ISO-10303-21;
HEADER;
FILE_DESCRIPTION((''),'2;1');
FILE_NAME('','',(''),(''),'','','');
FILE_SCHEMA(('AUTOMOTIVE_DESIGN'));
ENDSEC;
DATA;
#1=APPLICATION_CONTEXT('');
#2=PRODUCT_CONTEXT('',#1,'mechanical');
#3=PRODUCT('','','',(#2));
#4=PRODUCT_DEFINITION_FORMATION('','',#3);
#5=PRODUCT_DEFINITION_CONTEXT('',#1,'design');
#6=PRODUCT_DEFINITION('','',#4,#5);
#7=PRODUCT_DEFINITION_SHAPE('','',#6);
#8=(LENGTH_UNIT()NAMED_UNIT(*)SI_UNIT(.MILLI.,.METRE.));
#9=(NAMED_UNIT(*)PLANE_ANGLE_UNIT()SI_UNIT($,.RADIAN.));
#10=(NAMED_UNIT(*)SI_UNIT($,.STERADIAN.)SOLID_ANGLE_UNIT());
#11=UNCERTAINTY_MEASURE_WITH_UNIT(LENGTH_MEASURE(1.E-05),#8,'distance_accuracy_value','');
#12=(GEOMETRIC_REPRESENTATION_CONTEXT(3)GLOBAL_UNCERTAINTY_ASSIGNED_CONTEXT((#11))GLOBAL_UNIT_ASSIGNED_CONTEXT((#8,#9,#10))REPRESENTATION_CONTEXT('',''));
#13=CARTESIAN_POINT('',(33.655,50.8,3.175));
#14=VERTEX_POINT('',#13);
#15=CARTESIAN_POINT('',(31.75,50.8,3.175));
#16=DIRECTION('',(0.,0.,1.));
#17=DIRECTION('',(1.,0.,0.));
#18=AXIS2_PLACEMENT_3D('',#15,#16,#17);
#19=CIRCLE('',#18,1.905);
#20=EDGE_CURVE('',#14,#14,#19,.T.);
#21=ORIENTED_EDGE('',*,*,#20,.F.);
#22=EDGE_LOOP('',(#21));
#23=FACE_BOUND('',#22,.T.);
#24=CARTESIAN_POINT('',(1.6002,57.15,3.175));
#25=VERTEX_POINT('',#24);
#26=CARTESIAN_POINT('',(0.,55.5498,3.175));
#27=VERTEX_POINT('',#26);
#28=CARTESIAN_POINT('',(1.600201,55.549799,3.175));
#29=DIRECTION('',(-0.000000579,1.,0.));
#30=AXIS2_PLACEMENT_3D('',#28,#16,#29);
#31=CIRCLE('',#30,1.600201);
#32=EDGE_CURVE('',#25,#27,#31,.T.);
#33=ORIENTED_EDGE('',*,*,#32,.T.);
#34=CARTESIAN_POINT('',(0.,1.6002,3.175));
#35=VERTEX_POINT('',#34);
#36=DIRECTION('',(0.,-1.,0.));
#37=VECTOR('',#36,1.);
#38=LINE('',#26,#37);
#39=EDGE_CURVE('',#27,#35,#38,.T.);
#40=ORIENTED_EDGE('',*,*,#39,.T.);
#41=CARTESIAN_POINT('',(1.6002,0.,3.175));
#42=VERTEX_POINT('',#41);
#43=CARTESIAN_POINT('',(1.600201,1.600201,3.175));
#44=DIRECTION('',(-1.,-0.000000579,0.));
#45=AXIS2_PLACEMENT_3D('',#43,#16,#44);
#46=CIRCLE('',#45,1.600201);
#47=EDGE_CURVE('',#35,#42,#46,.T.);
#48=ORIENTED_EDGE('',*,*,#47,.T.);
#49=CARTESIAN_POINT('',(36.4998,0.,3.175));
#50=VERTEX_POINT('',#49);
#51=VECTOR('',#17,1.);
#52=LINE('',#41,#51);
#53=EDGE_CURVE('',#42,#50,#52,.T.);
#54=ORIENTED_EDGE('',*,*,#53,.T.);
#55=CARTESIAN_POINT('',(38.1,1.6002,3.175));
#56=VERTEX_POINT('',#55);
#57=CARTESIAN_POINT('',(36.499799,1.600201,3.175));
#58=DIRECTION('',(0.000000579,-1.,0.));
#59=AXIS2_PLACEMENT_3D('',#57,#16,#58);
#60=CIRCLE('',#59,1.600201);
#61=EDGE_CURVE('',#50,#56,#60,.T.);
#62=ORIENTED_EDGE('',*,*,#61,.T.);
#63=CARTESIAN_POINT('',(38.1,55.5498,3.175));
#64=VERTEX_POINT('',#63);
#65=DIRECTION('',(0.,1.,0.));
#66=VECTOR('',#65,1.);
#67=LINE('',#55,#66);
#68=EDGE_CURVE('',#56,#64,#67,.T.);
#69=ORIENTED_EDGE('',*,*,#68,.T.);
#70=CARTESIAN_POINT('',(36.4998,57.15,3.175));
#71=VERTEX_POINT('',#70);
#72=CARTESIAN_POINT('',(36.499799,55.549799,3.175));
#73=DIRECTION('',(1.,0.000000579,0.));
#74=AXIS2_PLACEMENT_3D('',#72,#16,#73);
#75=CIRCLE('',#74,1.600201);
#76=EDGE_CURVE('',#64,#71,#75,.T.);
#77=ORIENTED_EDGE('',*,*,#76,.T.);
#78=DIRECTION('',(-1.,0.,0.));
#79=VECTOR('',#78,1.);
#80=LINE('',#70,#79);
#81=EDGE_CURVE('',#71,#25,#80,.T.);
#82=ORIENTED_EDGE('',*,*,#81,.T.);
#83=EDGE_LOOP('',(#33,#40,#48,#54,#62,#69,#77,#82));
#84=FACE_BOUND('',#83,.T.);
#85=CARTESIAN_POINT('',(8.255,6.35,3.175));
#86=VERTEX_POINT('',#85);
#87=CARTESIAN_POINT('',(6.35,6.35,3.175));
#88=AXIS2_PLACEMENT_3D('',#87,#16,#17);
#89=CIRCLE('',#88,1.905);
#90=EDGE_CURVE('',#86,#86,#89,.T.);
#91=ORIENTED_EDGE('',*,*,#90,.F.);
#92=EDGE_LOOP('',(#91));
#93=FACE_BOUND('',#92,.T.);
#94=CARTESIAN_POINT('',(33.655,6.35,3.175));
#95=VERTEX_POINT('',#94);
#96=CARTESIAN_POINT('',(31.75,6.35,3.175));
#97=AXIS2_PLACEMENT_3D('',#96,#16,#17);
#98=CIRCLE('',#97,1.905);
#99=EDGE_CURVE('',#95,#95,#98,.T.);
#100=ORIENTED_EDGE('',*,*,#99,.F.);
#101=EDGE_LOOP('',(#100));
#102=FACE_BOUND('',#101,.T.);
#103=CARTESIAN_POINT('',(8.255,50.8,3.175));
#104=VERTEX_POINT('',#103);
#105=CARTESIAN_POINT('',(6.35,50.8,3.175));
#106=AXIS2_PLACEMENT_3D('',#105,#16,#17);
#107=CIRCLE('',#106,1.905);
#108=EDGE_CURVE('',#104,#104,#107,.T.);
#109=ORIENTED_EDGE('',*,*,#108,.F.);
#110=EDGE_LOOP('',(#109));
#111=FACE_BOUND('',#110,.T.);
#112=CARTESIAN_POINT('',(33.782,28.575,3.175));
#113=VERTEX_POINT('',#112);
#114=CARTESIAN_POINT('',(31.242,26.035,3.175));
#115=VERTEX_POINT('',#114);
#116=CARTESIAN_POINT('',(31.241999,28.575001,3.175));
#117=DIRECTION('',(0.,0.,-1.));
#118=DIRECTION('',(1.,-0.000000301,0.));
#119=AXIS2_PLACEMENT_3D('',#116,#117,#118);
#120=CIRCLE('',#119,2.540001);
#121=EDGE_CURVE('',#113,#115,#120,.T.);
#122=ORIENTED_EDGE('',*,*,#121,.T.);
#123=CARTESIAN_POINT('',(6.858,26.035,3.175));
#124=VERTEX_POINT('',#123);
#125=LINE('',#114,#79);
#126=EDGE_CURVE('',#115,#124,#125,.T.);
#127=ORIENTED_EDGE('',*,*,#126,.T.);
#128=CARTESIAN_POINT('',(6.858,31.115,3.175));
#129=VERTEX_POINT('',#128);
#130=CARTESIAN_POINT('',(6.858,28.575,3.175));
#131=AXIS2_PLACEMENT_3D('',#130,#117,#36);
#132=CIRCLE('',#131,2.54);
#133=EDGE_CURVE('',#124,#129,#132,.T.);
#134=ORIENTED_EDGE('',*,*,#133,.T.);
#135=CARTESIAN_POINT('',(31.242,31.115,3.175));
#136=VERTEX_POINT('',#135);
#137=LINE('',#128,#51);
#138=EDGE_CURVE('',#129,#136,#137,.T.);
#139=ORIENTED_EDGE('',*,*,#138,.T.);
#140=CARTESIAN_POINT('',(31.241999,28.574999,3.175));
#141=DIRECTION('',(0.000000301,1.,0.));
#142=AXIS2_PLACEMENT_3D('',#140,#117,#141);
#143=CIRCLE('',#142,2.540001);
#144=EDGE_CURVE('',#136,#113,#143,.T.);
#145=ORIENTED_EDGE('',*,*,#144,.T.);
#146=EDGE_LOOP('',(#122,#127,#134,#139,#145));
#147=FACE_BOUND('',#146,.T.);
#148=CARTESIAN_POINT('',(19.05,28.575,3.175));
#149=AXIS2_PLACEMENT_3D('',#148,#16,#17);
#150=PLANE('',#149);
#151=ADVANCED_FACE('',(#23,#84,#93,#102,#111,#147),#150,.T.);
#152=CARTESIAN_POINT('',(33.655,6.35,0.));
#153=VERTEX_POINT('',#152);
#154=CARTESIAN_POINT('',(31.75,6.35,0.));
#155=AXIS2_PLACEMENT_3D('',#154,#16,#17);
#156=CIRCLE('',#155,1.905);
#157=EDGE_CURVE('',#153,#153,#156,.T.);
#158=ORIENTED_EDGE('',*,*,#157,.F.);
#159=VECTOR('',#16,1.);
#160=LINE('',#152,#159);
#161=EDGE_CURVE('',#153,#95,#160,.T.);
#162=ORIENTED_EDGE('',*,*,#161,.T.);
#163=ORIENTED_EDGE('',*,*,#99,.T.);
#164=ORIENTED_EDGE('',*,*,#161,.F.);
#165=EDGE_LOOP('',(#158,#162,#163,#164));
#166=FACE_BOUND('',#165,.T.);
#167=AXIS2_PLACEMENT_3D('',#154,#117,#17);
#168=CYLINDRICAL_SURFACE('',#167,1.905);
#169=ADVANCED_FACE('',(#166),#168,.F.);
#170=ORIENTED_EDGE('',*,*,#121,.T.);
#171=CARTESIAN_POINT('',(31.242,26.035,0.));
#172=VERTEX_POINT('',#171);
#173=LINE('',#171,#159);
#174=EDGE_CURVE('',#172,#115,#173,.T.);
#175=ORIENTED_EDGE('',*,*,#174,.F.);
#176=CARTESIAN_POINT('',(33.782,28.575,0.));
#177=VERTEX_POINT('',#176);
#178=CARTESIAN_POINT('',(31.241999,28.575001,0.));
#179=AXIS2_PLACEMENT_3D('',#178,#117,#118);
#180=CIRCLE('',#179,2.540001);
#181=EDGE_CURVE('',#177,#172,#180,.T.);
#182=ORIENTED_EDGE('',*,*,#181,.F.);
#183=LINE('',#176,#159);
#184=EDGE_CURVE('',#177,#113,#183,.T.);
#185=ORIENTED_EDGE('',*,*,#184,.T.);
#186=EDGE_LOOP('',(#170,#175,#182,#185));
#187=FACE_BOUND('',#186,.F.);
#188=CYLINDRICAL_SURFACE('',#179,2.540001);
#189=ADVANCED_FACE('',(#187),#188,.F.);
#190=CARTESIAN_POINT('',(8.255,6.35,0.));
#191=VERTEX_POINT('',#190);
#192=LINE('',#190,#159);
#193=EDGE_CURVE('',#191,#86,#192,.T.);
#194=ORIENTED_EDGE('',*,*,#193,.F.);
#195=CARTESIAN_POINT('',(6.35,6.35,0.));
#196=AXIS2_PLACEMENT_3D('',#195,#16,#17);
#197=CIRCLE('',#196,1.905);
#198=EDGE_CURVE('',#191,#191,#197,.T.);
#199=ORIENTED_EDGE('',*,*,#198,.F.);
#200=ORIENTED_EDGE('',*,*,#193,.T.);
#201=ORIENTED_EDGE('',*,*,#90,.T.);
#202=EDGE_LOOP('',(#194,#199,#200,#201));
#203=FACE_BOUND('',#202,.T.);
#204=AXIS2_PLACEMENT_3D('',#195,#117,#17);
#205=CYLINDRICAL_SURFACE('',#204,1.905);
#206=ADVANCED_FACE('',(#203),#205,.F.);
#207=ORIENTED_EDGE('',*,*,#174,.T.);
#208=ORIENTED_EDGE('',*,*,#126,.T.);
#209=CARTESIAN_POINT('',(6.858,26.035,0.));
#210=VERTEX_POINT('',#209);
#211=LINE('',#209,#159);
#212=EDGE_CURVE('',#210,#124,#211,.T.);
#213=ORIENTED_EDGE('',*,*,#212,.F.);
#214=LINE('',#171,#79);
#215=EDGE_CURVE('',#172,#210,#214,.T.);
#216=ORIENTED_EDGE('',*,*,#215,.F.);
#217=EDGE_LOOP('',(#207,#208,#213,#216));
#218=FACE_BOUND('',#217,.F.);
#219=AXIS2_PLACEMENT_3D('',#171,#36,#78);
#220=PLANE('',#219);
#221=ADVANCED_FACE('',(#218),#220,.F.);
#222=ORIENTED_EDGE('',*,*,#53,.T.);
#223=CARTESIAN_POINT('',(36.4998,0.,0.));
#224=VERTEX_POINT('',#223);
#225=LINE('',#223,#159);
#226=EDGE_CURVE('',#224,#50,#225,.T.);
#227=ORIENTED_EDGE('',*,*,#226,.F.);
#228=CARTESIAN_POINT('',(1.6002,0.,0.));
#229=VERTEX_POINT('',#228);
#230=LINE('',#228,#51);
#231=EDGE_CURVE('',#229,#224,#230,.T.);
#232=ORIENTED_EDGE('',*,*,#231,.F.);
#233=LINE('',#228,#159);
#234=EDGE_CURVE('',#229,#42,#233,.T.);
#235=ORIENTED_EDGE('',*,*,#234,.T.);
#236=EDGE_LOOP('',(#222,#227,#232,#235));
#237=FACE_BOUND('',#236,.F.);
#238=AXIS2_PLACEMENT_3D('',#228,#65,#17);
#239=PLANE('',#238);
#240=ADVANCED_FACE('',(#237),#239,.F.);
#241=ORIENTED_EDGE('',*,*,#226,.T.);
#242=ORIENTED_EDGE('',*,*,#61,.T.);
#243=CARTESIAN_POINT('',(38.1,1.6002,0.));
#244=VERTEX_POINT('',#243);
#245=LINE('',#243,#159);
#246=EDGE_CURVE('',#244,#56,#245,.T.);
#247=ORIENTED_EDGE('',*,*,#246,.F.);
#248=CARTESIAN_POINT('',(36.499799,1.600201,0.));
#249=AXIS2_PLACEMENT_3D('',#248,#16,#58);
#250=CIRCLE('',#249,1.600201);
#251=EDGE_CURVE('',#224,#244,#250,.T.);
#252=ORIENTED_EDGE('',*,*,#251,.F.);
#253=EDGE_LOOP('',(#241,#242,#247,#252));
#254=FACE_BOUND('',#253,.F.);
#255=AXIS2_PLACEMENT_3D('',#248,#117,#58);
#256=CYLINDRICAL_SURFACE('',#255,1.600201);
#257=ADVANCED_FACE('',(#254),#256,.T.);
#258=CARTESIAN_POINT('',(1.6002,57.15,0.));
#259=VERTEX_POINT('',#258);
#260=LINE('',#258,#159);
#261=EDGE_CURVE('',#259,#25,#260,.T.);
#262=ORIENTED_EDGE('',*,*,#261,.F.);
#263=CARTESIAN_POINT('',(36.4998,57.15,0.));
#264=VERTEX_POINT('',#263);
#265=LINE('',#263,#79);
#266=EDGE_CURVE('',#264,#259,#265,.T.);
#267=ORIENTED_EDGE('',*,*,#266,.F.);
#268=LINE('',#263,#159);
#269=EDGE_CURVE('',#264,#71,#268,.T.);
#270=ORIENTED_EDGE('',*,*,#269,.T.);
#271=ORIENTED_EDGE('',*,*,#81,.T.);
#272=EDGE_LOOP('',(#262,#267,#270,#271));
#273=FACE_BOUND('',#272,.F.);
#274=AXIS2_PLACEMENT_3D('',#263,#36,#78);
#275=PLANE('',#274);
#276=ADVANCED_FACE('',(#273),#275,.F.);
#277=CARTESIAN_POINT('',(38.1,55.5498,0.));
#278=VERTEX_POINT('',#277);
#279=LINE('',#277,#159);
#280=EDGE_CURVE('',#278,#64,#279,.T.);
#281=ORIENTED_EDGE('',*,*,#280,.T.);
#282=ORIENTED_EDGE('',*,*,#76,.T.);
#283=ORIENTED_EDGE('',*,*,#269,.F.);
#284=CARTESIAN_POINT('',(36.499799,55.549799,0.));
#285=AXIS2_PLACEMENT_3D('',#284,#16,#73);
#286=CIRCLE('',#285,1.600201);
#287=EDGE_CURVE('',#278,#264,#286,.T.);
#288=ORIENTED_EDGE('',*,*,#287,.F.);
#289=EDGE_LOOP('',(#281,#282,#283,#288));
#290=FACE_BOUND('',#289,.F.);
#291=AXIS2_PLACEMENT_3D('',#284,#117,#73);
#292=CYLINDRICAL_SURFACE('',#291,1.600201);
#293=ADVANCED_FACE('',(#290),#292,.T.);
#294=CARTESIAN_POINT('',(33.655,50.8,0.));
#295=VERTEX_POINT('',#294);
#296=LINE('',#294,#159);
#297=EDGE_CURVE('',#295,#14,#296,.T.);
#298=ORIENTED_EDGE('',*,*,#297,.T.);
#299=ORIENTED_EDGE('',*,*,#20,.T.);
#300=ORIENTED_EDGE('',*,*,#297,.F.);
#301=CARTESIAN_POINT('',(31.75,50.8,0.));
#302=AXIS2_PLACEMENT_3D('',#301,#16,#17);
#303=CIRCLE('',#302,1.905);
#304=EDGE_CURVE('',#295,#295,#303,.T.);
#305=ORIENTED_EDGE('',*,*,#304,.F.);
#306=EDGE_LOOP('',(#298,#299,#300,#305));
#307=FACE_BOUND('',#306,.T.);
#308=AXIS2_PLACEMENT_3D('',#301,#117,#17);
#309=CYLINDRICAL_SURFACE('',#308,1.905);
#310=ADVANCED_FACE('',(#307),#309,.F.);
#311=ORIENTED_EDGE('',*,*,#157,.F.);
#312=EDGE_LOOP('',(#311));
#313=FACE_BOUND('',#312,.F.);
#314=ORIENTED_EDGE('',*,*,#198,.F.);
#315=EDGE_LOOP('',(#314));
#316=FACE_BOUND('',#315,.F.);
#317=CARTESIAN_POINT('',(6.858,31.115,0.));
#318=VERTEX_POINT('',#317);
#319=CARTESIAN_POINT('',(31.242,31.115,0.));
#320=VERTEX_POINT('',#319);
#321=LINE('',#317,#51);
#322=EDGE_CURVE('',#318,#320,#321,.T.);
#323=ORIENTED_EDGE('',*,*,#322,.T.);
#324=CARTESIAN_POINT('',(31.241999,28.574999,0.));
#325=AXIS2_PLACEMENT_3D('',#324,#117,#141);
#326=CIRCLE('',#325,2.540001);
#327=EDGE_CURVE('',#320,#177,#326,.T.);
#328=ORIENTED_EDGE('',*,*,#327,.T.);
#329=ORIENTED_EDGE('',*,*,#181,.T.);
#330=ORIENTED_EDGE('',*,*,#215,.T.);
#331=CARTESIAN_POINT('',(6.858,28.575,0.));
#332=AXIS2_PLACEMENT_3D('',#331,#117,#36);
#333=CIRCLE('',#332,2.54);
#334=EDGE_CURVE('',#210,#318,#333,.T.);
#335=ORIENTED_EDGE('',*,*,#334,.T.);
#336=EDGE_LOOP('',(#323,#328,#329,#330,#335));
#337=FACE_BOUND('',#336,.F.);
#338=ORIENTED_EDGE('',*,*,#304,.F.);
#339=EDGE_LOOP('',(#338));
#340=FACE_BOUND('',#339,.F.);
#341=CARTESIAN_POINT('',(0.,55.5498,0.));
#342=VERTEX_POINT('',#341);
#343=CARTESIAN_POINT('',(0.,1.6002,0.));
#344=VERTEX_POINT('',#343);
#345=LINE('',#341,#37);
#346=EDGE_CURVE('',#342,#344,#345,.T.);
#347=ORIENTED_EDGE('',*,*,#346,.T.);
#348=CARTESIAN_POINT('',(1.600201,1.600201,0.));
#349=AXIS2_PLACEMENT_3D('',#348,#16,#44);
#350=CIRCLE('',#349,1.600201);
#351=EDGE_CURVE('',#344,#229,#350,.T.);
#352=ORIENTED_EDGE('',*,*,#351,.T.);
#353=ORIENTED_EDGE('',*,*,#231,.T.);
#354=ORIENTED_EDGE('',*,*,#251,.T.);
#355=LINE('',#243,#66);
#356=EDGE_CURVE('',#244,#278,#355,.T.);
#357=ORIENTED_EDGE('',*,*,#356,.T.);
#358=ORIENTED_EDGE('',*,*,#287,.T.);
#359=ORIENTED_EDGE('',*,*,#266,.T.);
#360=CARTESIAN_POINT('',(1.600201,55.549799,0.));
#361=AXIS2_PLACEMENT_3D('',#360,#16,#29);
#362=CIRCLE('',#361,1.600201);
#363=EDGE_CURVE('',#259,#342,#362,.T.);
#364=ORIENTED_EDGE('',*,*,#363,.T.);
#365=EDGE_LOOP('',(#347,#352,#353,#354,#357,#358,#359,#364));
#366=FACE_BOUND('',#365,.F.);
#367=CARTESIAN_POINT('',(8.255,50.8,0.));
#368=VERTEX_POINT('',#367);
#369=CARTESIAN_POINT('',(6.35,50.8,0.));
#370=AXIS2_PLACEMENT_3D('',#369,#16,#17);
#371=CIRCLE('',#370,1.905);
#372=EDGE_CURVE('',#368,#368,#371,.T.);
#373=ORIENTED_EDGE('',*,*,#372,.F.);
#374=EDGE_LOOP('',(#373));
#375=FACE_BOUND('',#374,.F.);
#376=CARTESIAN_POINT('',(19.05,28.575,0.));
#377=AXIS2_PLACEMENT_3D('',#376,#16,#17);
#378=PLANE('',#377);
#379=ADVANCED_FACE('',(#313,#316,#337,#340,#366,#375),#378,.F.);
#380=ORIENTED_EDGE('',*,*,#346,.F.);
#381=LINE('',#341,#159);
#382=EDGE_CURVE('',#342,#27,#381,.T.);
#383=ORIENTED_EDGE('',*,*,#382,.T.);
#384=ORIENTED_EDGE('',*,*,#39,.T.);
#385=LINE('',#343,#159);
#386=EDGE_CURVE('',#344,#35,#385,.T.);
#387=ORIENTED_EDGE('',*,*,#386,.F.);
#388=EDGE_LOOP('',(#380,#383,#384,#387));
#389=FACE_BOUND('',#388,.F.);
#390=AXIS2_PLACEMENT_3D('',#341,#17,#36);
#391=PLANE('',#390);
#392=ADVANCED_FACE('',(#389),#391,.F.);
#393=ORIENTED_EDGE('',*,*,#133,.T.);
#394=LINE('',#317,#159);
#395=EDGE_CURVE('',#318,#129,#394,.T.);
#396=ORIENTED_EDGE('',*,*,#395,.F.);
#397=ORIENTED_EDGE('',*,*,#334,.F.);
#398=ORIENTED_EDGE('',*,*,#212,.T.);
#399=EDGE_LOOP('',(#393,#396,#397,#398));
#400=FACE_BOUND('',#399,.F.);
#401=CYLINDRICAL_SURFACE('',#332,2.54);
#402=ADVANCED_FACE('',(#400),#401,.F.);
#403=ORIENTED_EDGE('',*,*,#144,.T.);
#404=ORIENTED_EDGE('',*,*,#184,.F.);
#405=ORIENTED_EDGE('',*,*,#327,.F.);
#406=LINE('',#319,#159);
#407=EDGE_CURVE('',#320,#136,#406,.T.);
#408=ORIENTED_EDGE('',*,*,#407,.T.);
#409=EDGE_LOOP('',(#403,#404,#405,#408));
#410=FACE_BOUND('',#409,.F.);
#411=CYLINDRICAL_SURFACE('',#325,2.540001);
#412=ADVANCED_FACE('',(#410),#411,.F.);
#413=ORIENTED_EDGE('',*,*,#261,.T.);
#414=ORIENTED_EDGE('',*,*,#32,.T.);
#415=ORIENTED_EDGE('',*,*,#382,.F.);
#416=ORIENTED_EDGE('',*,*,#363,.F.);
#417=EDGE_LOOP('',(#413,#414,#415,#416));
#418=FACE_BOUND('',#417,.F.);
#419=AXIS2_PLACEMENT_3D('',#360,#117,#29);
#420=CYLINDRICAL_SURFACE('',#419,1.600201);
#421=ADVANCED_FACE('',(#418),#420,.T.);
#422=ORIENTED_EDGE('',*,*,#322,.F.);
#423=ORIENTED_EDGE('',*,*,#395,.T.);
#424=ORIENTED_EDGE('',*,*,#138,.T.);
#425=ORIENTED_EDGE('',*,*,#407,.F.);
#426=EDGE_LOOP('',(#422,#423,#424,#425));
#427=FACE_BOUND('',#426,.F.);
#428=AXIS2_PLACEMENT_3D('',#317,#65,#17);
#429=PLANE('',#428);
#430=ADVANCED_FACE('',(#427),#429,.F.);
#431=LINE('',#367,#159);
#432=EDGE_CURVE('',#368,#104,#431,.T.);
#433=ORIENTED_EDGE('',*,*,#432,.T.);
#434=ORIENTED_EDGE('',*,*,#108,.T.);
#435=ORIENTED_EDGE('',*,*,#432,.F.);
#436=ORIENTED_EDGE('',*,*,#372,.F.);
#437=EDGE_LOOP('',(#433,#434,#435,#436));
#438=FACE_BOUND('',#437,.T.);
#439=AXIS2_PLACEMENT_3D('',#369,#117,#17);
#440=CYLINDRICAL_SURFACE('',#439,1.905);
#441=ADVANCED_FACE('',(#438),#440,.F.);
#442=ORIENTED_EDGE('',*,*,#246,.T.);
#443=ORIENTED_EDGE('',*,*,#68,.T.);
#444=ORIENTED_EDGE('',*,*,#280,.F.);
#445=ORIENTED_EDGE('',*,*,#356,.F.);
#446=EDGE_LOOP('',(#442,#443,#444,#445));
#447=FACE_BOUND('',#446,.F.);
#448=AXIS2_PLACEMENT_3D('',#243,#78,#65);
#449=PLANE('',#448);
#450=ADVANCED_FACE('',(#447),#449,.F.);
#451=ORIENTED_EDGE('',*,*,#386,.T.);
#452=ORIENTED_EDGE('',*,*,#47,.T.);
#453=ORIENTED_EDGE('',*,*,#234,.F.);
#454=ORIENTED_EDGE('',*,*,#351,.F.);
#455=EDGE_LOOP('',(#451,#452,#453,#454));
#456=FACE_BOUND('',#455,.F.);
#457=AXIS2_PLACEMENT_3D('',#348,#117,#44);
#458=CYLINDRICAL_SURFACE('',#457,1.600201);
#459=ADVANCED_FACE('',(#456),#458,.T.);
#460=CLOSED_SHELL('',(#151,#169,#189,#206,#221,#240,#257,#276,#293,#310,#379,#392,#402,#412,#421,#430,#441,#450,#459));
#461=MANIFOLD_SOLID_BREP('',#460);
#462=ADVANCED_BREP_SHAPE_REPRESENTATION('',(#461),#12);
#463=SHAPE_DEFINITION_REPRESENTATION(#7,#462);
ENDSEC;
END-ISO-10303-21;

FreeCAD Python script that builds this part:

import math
import FreeCAD as App
import Part
import Sketcher

V = App.Vector
Q = App.Units.Quantity

doc = App.newDocument("Part")
params = doc.addObject("Spreadsheet::Sheet", "Params")
for row, (alias, value) in enumerate([
    ("sketch1_radius", "0.1 in"),
    ("sketch1_diameter", "0.15 in"),
    ("sketch1_radius2", "0.063 in"),
    ("sketch1_width", "0.96 in"),
    ("sketch1_height", "2.124 in"),
    ("pad1_length", "0.125 in"),
], start=1):
    params.set(f"A{row}", alias)
    params.set(f"B{row}", "=" + value)
    params.setAlias(f"B{row}", alias)

body = doc.addObject("PartDesign::Body", "Body")

sketch1 = body.newObject("Sketcher::SketchObject", "Sketch")
sketch1.AttachmentSupport = (doc.getObject("XY_Plane"), [""])
sketch1.MapMode = "FlatFace"
sketch1.addGeometry([
    Part.ArcOfCircle(Part.Circle(V(1.6, 1.6, 0), V(0, 0, 1), 1.6), math.radians(-180), math.radians(-90)),
    Part.LineSegment(V(1.6, 0, 0), V(36.5, 0, 0)),
    Part.ArcOfCircle(Part.Circle(V(36.5, 1.6, 0), V(0, 0, 1), 1.6), math.radians(-90), math.radians(0)),
    Part.LineSegment(V(38.1, 1.6, 0), V(38.1, 55.5, 0)),
    Part.ArcOfCircle(Part.Circle(V(36.5, 55.5, 0), V(0, 0, 1), 1.6), math.radians(0), math.radians(90)),
    Part.LineSegment(V(36.5, 57.1, 0), V(1.6, 57.1, 0)),
    Part.ArcOfCircle(Part.Circle(V(1.6, 55.5, 0), V(0, 0, 1), 1.6), math.radians(90), math.radians(180)),
    Part.LineSegment(V(0, 55.5, 0), V(0, 1.6, 0)),
    Part.Circle(V(6.3, 6.3, 0), V(0, 0, 1), 1.9),
    Part.Circle(V(31.8, 6.3, 0), V(0, 0, 1), 1.9),
    Part.LineSegment(V(31.2, 26, 0), V(6.9, 26, 0)),
    Part.ArcOfCircle(Part.Circle(V(6.9, 28.6, 0), V(0, 0, 1), 2.5), math.radians(90), math.radians(270)),
    Part.LineSegment(V(6.9, 31.1, 0), V(31.2, 31.1, 0)),
    Part.ArcOfCircle(Part.Circle(V(31.2, 28.6, 0), V(0, 0, 1), 2.5), math.radians(0), math.radians(90)),
    Part.ArcOfCircle(Part.Circle(V(31.2, 28.6, 0), V(0, 0, 1), 2.5), math.radians(-90), math.radians(0)),
    Part.Circle(V(6.3, 50.8, 0), V(0, 0, 1), 1.9),
    Part.Circle(V(31.8, 50.8, 0), V(0, 0, 1), 1.9),
], False)
sketch1.addConstraint([
    Sketcher.Constraint("Tangent", 0, 2, 1, 1),
    Sketcher.Constraint("Tangent", 1, 2, 2, 1),
    Sketcher.Constraint("Tangent", 2, 2, 3, 1),
    Sketcher.Constraint("Tangent", 3, 2, 4, 1),
    Sketcher.Constraint("Tangent", 4, 2, 5, 1),
    Sketcher.Constraint("Tangent", 5, 2, 6, 1),
    Sketcher.Constraint("Tangent", 6, 2, 7, 1),
    Sketcher.Constraint("Tangent", 7, 2, 0, 1),
    Sketcher.Constraint("Tangent", 10, 2, 11, 2),
    Sketcher.Constraint("Tangent", 11, 1, 12, 1),
    Sketcher.Constraint("Tangent", 12, 2, 13, 2),
    Sketcher.Constraint("Tangent", 13, 1, 14, 2),
    Sketcher.Constraint("Tangent", 14, 1, 10, 1),
    Sketcher.Constraint("Horizontal", 1),
    Sketcher.Constraint("Vertical", 3),
    Sketcher.Constraint("Horizontal", 5),
    Sketcher.Constraint("Vertical", 7),
    Sketcher.Constraint("Horizontal", 10),
    Sketcher.Constraint("Horizontal", 12),
    Sketcher.Constraint("Equal", 0, 2),
    Sketcher.Constraint("Equal", 2, 4),
    Sketcher.Constraint("Equal", 4, 6),
    Sketcher.Constraint("Equal", 8, 9),
    Sketcher.Constraint("Equal", 11, 13),
    Sketcher.Constraint("Equal", 9, 15),
    Sketcher.Constraint("Equal", 15, 16),
    Sketcher.Constraint("PointOnObject", 0, 2, -1),
    Sketcher.Constraint("PointOnObject", 6, 2, -2),
    Sketcher.Constraint("Horizontal", 8, 3, 9, 3),
    Sketcher.Constraint("Horizontal", 15, 3, 16, 3),
    Sketcher.Constraint("Horizontal", 14, 3, 13, 1),
    Sketcher.Constraint("Vertical", 8, 3, 15, 3),
    Sketcher.Constraint("Vertical", 9, 3, 16, 3),
    Sketcher.Constraint("Radius", 11, Q("0.1 in")),
    Sketcher.Constraint("Diameter", 8, Q("0.15 in")),
    Sketcher.Constraint("DistanceY", -1, 1, 15, 3, Q("2 in")),
    Sketcher.Constraint("Radius", 0, Q("0.063 in")),
    Sketcher.Constraint("DistanceX", 8, 3, 9, 3, Q("1 in")),
    Sketcher.Constraint("DistanceX", 10, 2, 10, 1, Q("0.96 in")),
    Sketcher.Constraint("DistanceX", -1, 1, 2, 2, Q("1.5 in")),
    Sketcher.Constraint("DistanceY", 3, 1, 3, 2, Q("2.124 in")),
    Sketcher.Constraint("DistanceX", -1, 1, 8, 3, Q("0.25 in")),
    Sketcher.Constraint("DistanceY", -1, 1, 8, 3, Q("0.25 in")),
    Sketcher.Constraint("DistanceX", -1, 1, 11, 3, Q("0.27 in")),
    Sketcher.Constraint("DistanceY", -1, 1, 11, 3, Q("1.125 in")),
])
sketch1.setExpression("Constraints[33]", "Params.sketch1_radius")
sketch1.setExpression("Constraints[34]", "Params.sketch1_diameter")
sketch1.setExpression("Constraints[36]", "Params.sketch1_radius2")
sketch1.setExpression("Constraints[38]", "Params.sketch1_width")
sketch1.setExpression("Constraints[40]", "Params.sketch1_height")
pad1 = body.newObject("PartDesign::Pad", "Pad")
pad1.Profile = sketch1
pad1.setExpression("Length", "Params.pad1_length")

doc.recompute()
